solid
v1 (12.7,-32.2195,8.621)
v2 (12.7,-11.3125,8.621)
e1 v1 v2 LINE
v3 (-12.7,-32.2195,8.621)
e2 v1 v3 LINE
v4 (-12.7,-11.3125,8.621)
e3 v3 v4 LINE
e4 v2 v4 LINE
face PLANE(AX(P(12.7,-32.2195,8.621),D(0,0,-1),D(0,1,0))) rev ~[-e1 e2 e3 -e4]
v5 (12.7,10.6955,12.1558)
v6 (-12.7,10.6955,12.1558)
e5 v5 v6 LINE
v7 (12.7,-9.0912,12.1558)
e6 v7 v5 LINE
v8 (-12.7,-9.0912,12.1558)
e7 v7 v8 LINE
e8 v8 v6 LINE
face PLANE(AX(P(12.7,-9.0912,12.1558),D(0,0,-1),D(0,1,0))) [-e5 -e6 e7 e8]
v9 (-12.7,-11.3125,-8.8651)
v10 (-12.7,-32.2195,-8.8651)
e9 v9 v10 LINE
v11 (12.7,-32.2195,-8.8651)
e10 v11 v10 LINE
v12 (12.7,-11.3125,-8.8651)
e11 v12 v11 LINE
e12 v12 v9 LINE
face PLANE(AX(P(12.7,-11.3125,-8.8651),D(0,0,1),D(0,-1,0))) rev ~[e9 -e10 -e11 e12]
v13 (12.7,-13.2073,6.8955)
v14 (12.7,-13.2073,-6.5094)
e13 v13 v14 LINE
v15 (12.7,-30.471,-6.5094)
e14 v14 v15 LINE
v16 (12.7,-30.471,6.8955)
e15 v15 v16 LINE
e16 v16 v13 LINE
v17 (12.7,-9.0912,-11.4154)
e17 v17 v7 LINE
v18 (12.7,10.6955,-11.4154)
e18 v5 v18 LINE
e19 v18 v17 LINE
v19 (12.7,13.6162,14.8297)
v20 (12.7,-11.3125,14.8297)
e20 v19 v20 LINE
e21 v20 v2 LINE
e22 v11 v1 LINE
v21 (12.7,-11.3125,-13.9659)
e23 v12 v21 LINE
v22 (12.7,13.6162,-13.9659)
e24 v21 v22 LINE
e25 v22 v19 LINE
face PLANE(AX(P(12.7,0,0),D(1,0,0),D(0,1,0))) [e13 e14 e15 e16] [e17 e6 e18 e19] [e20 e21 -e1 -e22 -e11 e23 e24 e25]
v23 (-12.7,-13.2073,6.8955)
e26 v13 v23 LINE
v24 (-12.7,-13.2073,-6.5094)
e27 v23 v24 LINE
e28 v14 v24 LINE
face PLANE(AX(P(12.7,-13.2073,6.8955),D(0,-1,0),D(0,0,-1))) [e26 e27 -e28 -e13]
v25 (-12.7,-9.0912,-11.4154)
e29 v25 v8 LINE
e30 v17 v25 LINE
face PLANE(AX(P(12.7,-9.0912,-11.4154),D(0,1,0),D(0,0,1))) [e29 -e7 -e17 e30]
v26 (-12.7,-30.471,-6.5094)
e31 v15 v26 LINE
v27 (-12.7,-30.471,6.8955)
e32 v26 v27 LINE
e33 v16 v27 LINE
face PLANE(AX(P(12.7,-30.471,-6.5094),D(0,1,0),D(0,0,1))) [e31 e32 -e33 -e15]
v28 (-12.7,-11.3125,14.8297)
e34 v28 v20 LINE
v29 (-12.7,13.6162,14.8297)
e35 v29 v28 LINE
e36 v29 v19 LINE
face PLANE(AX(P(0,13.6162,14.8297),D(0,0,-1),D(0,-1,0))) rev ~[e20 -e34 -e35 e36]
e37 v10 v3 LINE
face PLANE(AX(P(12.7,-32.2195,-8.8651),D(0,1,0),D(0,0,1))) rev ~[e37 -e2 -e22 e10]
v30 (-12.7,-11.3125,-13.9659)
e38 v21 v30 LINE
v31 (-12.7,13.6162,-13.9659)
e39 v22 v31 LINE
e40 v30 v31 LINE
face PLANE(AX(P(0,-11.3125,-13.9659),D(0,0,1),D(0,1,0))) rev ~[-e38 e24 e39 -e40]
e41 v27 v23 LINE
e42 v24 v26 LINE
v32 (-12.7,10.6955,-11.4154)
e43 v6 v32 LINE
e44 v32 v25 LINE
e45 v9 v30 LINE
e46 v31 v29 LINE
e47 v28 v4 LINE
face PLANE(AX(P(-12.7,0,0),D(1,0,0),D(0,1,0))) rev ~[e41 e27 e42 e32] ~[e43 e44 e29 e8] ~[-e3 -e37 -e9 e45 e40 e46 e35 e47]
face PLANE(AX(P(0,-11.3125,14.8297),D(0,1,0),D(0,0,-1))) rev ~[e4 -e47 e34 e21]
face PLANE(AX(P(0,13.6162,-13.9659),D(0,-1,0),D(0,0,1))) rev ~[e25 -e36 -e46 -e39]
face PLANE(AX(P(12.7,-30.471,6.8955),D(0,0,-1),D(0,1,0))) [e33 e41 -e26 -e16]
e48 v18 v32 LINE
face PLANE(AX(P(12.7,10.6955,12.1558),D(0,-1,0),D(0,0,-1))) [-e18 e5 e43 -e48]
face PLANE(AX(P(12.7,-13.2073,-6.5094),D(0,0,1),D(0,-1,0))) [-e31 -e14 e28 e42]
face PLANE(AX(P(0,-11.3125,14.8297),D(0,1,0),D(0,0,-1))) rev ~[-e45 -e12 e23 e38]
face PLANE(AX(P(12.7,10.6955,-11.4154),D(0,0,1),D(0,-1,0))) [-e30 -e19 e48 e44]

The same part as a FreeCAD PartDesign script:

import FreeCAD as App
import Part
import Sketcher
from FreeCAD import Vector
Q = App.Units.Quantity

doc = App.newDocument("Part")
params = doc.addObject("Spreadsheet::Sheet", "Params")
for row, (alias, value) in enumerate([
    ("pad1_length", "1 in"),
    ("sketch2_width", "0.779 in"),
    ("sketch2_height", "0.928 in"),
    ("pocket1_length", "1 in"),
    ("pad2_length", "1 in"),
    ("pocket2_length", "1 in"),
], start=1):
    params.set(f"A{row}", alias)
    params.set(f"B{row}", "=" + value)
    params.setAlias(f"B{row}", alias)

body = doc.addObject("PartDesign::Body", "Body")

sketch1 = doc.addObject("Sketcher::SketchObject", "Sketch")
body.addObject(sketch1)
sketch1.AttachmentSupport = (doc.YZ_Plane, [""])
sketch1.MapMode = "FlatFace"
sketch1.addGeometry([
    Part.LineSegment(Vector(13.6162, -13.9659, 0), Vector(13.6162, 14.8297, 0)),
    Part.LineSegment(Vector(13.6162, 14.8297, 0), Vector(-11.3125, 14.8297, 0)),
    Part.LineSegment(Vector(-11.3125, 14.8297, 0), Vector(-11.3125, -13.9659, 0)),
    Part.LineSegment(Vector(-11.3125, -13.9659, 0), Vector(13.6162, -13.9659, 0)),
], False)
sketch1.addConstraint([
    Sketcher.Constraint("Coincident", 0, 2, 1, 1),
    Sketcher.Constraint("Coincident", 1, 2, 2, 1),
    Sketcher.Constraint("Coincident", 2, 2, 3, 1),
    Sketcher.Constraint("Coincident", 3, 2, 0, 1),
    Sketcher.Constraint("Vertical", 0),
    Sketcher.Constraint("Horizontal", 1),
    Sketcher.Constraint("Vertical", 2),
    Sketcher.Constraint("Horizontal", 3),
    Sketcher.Constraint("DistanceX", 1, 2, 1, 1, 24.9287),
    Sketcher.Constraint("DistanceY", 0, 1, 0, 2, 28.7956),
    Sketcher.Constraint("DistanceX", -1, 1, 0, 2, 13.6162),
    Sketcher.Constraint("DistanceY", -1, 1, 0, 2, 14.8297),
])
pad1 = doc.addObject("PartDesign::Pad", "Pad")
body.addObject(pad1)
pad1.Profile = sketch1
pad1.setExpression("Length", "Params.pad1_length")
pad1.Midplane = True

sketch2 = doc.addObject("Sketcher::SketchObject", "Sketch001")
body.addObject(sketch2)
sketch2.AttachmentSupport = (doc.YZ_Plane, [""])
sketch2.MapMode = "FlatFace"
sketch2.AttachmentOffset = App.Placement(Vector(0, 0, 0.5 * 25.4), App.Rotation())
sketch2.addGeometry([
    Part.LineSegment(Vector(10.6955, -11.4154, 0), Vector(10.6955, 12.1558, 0)),
    Part.LineSegment(Vector(10.6955, 12.1558, 0), Vector(-9.0912, 12.1558, 0)),
    Part.LineSegment(Vector(-9.0912, 12.1558, 0), Vector(-9.0912, -11.4154, 0)),
    Part.LineSegment(Vector(-9.0912, -11.4154, 0), Vector(10.6955, -11.4154, 0)),
], False)
sketch2.addConstraint([
    Sketcher.Constraint("Coincident", 0, 2, 1, 1),
    Sketcher.Constraint("Coincident", 1, 2, 2, 1),
    Sketcher.Constraint("Coincident", 2, 2, 3, 1),
    Sketcher.Constraint("Coincident", 3, 2, 0, 1),
    Sketcher.Constraint("Vertical", 0),
    Sketcher.Constraint("Horizontal", 1),
    Sketcher.Constraint("Vertical", 2),
    Sketcher.Constraint("Horizontal", 3),
    Sketcher.Constraint("DistanceX", 1, 2, 1, 1, Q("0.779 in")),
    Sketcher.Constraint("DistanceY", 0, 1, 0, 2, Q("0.928 in")),
    Sketcher.Constraint("DistanceX", -1, 1, 0, 2, 10.6955),
    Sketcher.Constraint("DistanceY", -1, 1, 0, 2, 12.1558),
])
sketch2.setExpression("Constraints[8]", "Params.sketch2_width")
sketch2.setExpression("Constraints[9]", "Params.sketch2_height")
pocket1 = doc.addObject("PartDesign::Pocket", "Pocket")
body.addObject(pocket1)
pocket1.Profile = sketch2
pocket1.setExpression("Length", "Params.pocket1_length")

sketch3 = doc.addObject("Sketcher::SketchObject", "Sketch002")
body.addObject(sketch3)
sketch3.AttachmentSupport = (doc.YZ_Plane, [""])
sketch3.MapMode = "FlatFace"
sketch3.AttachmentOffset = App.Placement(Vector(0, 0, 0.5 * 25.4), App.Rotation())
sketch3.addGeometry([
    Part.LineSegment(Vector(-11.3125, -8.8651, 0), Vector(-11.3125, 8.621, 0)),
    Part.LineSegment(Vector(-11.3125, 8.621, 0), Vector(-32.2195, 8.621, 0)),
    Part.LineSegment(Vector(-32.2195, 8.621, 0), Vector(-32.2195, -8.8651, 0)),
    Part.LineSegment(Vector(-32.2195, -8.8651, 0), Vector(-11.3125, -8.8651, 0)),
], False)
sketch3.addConstraint([
    Sketcher.Constraint("Coincident", 0, 2, 1, 1),
    Sketcher.Constraint("Coincident", 1, 2, 2, 1),
    Sketcher.Constraint("Coincident", 2, 2, 3, 1),
    Sketcher.Constraint("Coincident", 3, 2, 0, 1),
    Sketcher.Constraint("Vertical", 0),
    Sketcher.Constraint("Horizontal", 1),
    Sketcher.Constraint("Vertical", 2),
    Sketcher.Constraint("Horizontal", 3),
    Sketcher.Constraint("DistanceX", 1, 2, 1, 1, Q("0.8231 in")),
    Sketcher.Constraint("DistanceY", 0, 1, 0, 2, 17.486),
    Sketcher.Constraint("DistanceY", -1, 1, 0, 2, Q("0.3394 in")),
    Sketcher.Constraint("DistanceX", 0, 2, -1, 1, 11.3125),
])
pad2 = doc.addObject("PartDesign::Pad", "Pad001")
body.addObject(pad2)
pad2.Profile = sketch3
pad2.setExpression("Length", "Params.pad2_length")
pad2.Reversed = True

sketch4 = doc.addObject("Sketcher::SketchObject", "Sketch003")
body.addObject(sketch4)
sketch4.AttachmentSupport = (doc.YZ_Plane, [""])
sketch4.MapMode = "FlatFace"
sketch4.AttachmentOffset = App.Placement(Vector(0, 0, 0.5 * 25.4), App.Rotation())
sketch4.addGeometry([
    Part.LineSegment(Vector(-13.2073, -6.5094, 0), Vector(-13.2073, 6.8955, 0)),
    Part.LineSegment(Vector(-13.2073, 6.8955, 0), Vector(-30.471, 6.8955, 0)),
    Part.LineSegment(Vector(-30.471, 6.8955, 0), Vector(-30.471, -6.5094, 0)),
    Part.LineSegment(Vector(-30.471, -6.5094, 0), Vector(-13.2073, -6.5094, 0)),
], False)
sketch4.addConstraint([
    Sketcher.Constraint("Coincident", 0, 2, 1, 1),
    Sketcher.Constraint("Coincident", 1, 2, 2, 1),
    Sketcher.Constraint("Coincident", 2, 2, 3, 1),
    Sketcher.Constraint("Coincident", 3, 2, 0, 1),
    Sketcher.Constraint("Vertical", 0),
    Sketcher.Constraint("Horizontal", 1),
    Sketcher.Constraint("Vertical", 2),
    Sketcher.Constraint("Horizontal", 3),
    Sketcher.Constraint("DistanceX", 1, 2, 1, 1, 17.2637),
    Sketcher.Constraint("DistanceY", 0, 1, 0, 2, 13.405),
    Sketcher.Constraint("DistanceX", 0, 2, -1, 1, 13.2073),
    Sketcher.Constraint("DistanceY", -1, 1, 0, 2, 6.8955),
])
pocket2 = doc.addObject("PartDesign::Pocket", "Pocket001")
body.addObject(pocket2)
pocket2.Profile = sketch4
pocket2.setExpression("Length", "Params.pocket2_length")

doc.recompute()
